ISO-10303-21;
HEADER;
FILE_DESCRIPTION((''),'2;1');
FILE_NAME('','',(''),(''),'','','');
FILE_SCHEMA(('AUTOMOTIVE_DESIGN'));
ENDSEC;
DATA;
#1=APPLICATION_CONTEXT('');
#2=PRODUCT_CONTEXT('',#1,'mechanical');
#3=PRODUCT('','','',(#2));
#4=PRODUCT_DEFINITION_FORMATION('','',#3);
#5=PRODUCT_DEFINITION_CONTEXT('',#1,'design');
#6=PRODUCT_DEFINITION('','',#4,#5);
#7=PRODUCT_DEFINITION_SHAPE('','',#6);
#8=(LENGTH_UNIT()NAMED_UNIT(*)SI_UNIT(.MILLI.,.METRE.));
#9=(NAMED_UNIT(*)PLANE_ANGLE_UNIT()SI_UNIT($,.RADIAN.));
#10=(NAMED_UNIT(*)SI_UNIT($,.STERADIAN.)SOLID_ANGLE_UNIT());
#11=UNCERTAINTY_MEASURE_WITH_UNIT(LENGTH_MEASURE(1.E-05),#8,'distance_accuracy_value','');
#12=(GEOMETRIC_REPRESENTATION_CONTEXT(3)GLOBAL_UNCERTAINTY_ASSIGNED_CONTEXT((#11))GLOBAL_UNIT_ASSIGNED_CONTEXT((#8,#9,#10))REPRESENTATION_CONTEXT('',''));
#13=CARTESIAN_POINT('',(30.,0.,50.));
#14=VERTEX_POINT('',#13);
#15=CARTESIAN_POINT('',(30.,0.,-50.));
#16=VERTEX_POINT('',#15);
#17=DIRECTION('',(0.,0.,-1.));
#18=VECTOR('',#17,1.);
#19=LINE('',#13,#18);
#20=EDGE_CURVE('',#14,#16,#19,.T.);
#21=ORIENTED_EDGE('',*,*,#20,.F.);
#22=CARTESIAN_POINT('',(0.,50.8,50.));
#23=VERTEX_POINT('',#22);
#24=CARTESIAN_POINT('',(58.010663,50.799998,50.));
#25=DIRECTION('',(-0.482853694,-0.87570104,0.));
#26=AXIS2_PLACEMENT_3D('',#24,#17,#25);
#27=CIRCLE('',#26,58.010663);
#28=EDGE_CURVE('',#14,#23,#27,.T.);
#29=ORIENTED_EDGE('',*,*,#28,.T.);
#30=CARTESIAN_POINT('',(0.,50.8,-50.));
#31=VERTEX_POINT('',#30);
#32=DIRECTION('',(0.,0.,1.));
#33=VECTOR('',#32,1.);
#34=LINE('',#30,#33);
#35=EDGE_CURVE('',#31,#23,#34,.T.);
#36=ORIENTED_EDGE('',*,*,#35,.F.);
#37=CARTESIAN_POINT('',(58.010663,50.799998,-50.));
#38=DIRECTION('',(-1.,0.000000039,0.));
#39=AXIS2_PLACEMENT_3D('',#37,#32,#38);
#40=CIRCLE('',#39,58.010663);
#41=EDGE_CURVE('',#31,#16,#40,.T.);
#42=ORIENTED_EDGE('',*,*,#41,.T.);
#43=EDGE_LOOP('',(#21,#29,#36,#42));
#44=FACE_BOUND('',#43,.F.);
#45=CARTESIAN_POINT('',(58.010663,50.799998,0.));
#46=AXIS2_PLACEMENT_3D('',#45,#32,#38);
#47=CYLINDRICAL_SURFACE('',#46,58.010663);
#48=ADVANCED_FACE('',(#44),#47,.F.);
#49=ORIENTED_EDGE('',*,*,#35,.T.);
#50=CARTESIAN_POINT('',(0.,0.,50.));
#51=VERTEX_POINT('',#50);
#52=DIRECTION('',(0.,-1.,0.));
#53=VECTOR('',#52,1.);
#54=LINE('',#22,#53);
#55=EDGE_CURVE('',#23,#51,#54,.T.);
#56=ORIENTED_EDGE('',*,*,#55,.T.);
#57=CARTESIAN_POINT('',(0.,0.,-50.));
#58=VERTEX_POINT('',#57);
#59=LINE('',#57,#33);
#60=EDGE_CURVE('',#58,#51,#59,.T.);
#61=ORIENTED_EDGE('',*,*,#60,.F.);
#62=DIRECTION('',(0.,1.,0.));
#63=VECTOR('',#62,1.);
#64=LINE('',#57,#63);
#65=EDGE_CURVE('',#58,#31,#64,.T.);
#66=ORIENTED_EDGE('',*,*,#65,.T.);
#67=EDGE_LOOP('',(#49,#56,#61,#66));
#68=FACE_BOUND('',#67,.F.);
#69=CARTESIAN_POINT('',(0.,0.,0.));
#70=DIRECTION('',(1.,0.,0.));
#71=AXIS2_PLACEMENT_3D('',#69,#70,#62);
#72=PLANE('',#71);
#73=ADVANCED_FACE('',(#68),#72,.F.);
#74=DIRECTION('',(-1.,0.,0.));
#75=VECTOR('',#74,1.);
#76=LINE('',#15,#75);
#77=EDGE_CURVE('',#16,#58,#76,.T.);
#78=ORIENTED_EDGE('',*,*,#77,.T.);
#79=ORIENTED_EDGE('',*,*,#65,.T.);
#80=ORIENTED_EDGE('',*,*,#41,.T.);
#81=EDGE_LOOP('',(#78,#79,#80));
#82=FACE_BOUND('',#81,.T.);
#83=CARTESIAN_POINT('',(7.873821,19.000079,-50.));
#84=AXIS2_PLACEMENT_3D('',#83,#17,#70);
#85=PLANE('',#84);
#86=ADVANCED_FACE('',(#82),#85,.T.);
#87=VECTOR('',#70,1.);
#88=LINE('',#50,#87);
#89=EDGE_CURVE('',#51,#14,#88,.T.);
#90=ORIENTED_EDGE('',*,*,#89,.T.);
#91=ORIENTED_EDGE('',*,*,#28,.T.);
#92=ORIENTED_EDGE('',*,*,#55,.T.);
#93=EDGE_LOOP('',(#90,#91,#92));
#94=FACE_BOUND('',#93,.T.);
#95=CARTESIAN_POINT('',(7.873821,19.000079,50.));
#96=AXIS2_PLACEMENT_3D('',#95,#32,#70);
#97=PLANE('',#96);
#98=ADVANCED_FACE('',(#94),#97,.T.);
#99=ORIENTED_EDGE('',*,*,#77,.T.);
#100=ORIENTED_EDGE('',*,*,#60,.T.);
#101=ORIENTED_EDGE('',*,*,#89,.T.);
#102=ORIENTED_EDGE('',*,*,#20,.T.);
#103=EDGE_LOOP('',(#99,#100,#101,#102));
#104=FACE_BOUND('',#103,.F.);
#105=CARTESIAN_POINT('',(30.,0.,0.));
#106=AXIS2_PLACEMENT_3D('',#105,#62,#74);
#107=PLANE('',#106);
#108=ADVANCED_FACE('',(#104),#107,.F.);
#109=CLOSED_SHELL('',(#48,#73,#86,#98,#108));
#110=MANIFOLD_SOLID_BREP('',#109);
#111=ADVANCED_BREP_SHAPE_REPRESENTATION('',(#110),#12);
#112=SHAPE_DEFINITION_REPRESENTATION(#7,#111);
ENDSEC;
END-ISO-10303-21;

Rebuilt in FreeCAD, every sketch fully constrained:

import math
import FreeCAD as App
import Part
import Sketcher
from FreeCAD import Vector
Q = App.Units.Quantity

doc = App.newDocument("Part")
body = doc.addObject("PartDesign::Body", "Body")

# Sketch on XY plane
sketch1 = body.newObject("Sketcher::SketchObject", "Sketch")
sketch1.AttachmentSupport = (doc.getObject("XY_Plane"), [""])
sketch1.MapMode = "FlatFace"
sketch1.addGeometry(Part.ArcOfCircle(Part.Circle(Vector(58, 51, 0), Vector(0, 0, 1), 58), math.radians(180), math.radians(241)), False)
sketch1.addGeometry(Part.LineSegment(Vector(0, 51, 0), Vector(0, 0, 0)), False)
sketch1.addGeometry(Part.LineSegment(Vector(0, 0, 0), Vector(30, 0, 0)), False)
sketch1.addConstraint(Sketcher.Constraint("Tangent", 0, 1, 1, 1))
sketch1.addConstraint(Sketcher.Constraint("Coincident", 1, 2, 2, 1))
sketch1.addConstraint(Sketcher.Constraint("Coincident", 2, 2, 0, 2))
sketch1.addConstraint(Sketcher.Constraint("Vertical", 1))
sketch1.addConstraint(Sketcher.Constraint("Horizontal", 2))
sketch1.addConstraint(Sketcher.Constraint("Coincident", 1, 2, -1, 1))
sketch1.addConstraint(Sketcher.Constraint("DistanceX", 2, 1, 2, 2, Q("30 mm")))
sketch1.addConstraint(Sketcher.Constraint("DistanceY", 1, 2, 1, 1, Q("50.8 mm")))
pad1 = body.newObject("PartDesign::Pad", "Pad")
pad1.Profile = sketch1
pad1.Length = 50

# Sketch on XY plane
sketch2 = body.newObject("Sketcher::SketchObject", "Sketch001")
sketch2.AttachmentSupport = (doc.getObject("XY_Plane"), [""])
sketch2.MapMode = "FlatFace"
sketch2.addGeometry(Part.ArcOfCircle(Part.Circle(Vector(58, 51, 0), Vector(0, 0, 1), 58), math.radians(180), math.radians(241)), False)
sketch2.addGeometry(Part.LineSegment(Vector(30, 0, 0), Vector(0, 0, 0)), False)
sketch2.addGeometry(Part.LineSegment(Vector(0, 0, 0), Vector(0, 51, 0)), False)
sketch2.addConstraint(Sketcher.Constraint("Coincident", 0, 2, 1, 1))
sketch2.addConstraint(Sketcher.Constraint("Coincident", 1, 2, 2, 1))
sketch2.addConstraint(Sketcher.Constraint("Tangent", 2, 2, 0, 1))
sketch2.addConstraint(Sketcher.Constraint("Horizontal", 1))
sketch2.addConstraint(Sketcher.Constraint("Vertical", 2))
sketch2.addConstraint(Sketcher.Constraint("Coincident", 1, 2, -1, 1))
sketch2.addConstraint(Sketcher.Constraint("DistanceX", 1, 2, 1, 1, Q("30 mm")))
sketch2.addConstraint(Sketcher.Constraint("DistanceY", 2, 1, 2, 2, Q("50.8 mm")))
pad2 = body.newObject("PartDesign::Pad", "Pad001")
pad2.Profile = sketch2
pad2.Length = 50
pad2.Reversed = True

doc.recompute()
